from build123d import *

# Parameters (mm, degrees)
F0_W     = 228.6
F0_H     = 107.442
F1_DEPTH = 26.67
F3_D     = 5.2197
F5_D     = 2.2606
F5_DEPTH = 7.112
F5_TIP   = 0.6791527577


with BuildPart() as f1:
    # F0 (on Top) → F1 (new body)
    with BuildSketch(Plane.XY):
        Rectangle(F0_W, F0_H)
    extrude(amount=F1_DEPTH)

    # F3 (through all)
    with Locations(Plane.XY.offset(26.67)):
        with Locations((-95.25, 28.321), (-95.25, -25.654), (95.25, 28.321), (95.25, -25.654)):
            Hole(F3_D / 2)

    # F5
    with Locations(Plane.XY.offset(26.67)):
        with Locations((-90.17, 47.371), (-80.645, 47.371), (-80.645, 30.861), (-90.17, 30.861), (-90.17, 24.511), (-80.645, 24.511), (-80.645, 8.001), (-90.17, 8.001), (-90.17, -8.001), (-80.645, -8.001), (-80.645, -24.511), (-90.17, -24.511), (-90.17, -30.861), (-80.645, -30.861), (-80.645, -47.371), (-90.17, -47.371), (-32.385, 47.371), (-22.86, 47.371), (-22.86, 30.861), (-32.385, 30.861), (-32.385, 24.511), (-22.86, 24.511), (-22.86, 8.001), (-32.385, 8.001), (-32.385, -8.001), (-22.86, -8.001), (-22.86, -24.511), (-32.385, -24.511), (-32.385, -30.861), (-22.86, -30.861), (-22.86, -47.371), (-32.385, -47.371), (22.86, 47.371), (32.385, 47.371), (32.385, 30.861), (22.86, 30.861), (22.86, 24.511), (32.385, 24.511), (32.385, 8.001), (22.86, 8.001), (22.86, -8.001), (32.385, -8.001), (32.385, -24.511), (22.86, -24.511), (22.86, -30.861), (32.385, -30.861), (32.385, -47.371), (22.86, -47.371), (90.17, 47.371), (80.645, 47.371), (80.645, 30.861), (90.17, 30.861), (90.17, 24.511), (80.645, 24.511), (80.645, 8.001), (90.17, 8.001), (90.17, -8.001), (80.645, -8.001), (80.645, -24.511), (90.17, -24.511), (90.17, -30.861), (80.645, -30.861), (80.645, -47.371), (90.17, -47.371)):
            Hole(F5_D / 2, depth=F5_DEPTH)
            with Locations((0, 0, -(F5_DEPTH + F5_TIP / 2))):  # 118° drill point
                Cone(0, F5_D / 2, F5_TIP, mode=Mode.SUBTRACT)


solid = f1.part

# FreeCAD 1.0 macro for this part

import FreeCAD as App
import Part
import Sketcher
Q = App.Units.Quantity

doc = App.newDocument("Part")
body = doc.addObject("PartDesign::Body", "Body")

sketch1 = doc.addObject("Sketcher::SketchObject", "Sketch")
body.addObject(sketch1)
sketch1.AttachmentSupport = (doc.XY_Plane, [""])
sketch1.MapMode = "FlatFace"
sketch1.addGeometry([
    Part.LineSegment(App.Vector(-114, 54, 0), App.Vector(-114, -54, 0)),
    Part.LineSegment(App.Vector(-114, -54, 0), App.Vector(114, -54, 0)),
    Part.LineSegment(App.Vector(114, -54, 0), App.Vector(114, 54, 0)),
    Part.LineSegment(App.Vector(114, 54, 0), App.Vector(-114, 54, 0)),
], False)
sketch1.addConstraint([
    Sketcher.Constraint("Coincident", 0, 2, 1, 1),
    Sketcher.Constraint("Coincident", 1, 2, 2, 1),
    Sketcher.Constraint("Coincident", 2, 2, 3, 1),
    Sketcher.Constraint("Coincident", 3, 2, 0, 1),
    Sketcher.Constraint("Vertical", 0),
    Sketcher.Constraint("Horizontal", 1),
    Sketcher.Constraint("Vertical", 2),
    Sketcher.Constraint("Horizontal", 3),
    Sketcher.Constraint("Symmetric", 0, 2, 2, 2, -1, 1),
    Sketcher.Constraint("DistanceX", 1, 1, 1, 2, Q("9 in")),
    Sketcher.Constraint("DistanceY", 0, 2, 0, 1, Q("4.23 in")),
])
pad1 = doc.addObject("PartDesign::Pad", "Pad")
body.addObject(pad1)
pad1.Profile = sketch1
pad1.Length = Q("1.05 in")

sketch2 = doc.addObject("Sketcher::SketchObject", "Sketch001")
body.addObject(sketch2)
sketch2.AttachmentSupport = (doc.XY_Plane, [""])
sketch2.MapMode = "FlatFace"
sketch2.AttachmentOffset = App.Placement(App.Vector(0, 0, 1.05 * 25.4), App.Rotation())
sketch2.addGeometry([
    Part.Circle(App.Vector(-95.2, 28.3, 0), App.Vector(0, 0, 1), 2.6),
    Part.Circle(App.Vector(-95.2, -25.7, 0), App.Vector(0, 0, 1), 2.6),
    Part.Circle(App.Vector(95.2, 28.3, 0), App.Vector(0, 0, 1), 2.6),
    Part.Circle(App.Vector(95.2, -25.7, 0), App.Vector(0, 0, 1), 2.6),
], False)
sketch2.addConstraint([
    Sketcher.Constraint("Equal", 0, 1),
    Sketcher.Constraint("Equal", 1, 2),
    Sketcher.Constraint("Equal", 2, 3),
    Sketcher.Constraint("Symmetric", 0, 3, 2, 3, -2),
    Sketcher.Constraint("Symmetric", 1, 3, 3, 3, -2),
    Sketcher.Constraint("Vertical", 0, 3, 1, 3),
    Sketcher.Constraint("Diameter", 0, Q("0.2055 in")),
    Sketcher.Constraint("DistanceX", 0, 3, 2, 3, Q("7.5 in")),
    Sketcher.Constraint("DistanceY", 1, 3, -1, 1, Q("1.01 in")),
    Sketcher.Constraint("DistanceY", -1, 1, 0, 3, Q("1.115 in")),
])
doc.recompute()
hole = doc.addObject("PartDesign::Hole", "Hole")
body.addObject(hole)
hole.Profile = sketch2
hole.ThreadType = "None"
hole.Diameter = Q("0.2055 in")
hole.DepthType = "ThroughAll"

sketch3 = doc.addObject("Sketcher::SketchObject", "Sketch002")
body.addObject(sketch3)
sketch3.AttachmentSupport = (doc.XY_Plane, [""])
sketch3.MapMode = "FlatFace"
sketch3.AttachmentOffset = App.Placement(App.Vector(0, 0, 1.05 * 25.4), App.Rotation())
sketch3.addGeometry([
    Part.Circle(App.Vector(-90.2, 47.4, 0), App.Vector(0, 0, 1), 1.1),
    Part.Circle(App.Vector(-80.6, 47.4, 0), App.Vector(0, 0, 1), 1.1),
    Part.Circle(App.Vector(-80.6, 30.9, 0), App.Vector(0, 0, 1), 1.1),
    Part.Circle(App.Vector(-90.2, 30.9, 0), App.Vector(0, 0, 1), 1.1),
    Part.Circle(App.Vector(-90.2, 24.5, 0), App.Vector(0, 0, 1), 1.1),
    Part.Circle(App.Vector(-80.6, 24.5, 0), App.Vector(0, 0, 1), 1.1),
    Part.Circle(App.Vector(-80.6, 8, 0), App.Vector(0, 0, 1), 1.1),
    Part.Circle(App.Vector(-90.2, 8, 0), App.Vector(0, 0, 1), 1.1),
    Part.Circle(App.Vector(-90.2, -8, 0), App.Vector(0, 0, 1), 1.1),
    Part.Circle(App.Vector(-80.6, -8, 0), App.Vector(0, 0, 1), 1.1),
    Part.Circle(App.Vector(-80.6, -24.5, 0), App.Vector(0, 0, 1), 1.1),
    Part.Circle(App.Vector(-90.2, -24.5, 0), App.Vector(0, 0, 1), 1.1),
    Part.Circle(App.Vector(-90.2, -30.9, 0), App.Vector(0, 0, 1), 1.1),
    Part.Circle(App.Vector(-80.6, -30.9, 0), App.Vector(0, 0, 1), 1.1),
    Part.Circle(App.Vector(-80.6, -47.4, 0), App.Vector(0, 0, 1), 1.1),
    Part.Circle(App.Vector(-90.2, -47.4, 0), App.Vector(0, 0, 1), 1.1),
    Part.Circle(App.Vector(-32.4, 47.4, 0), App.Vector(0, 0, 1), 1.1),
    Part.Circle(App.Vector(-22.9, 47.4, 0), App.Vector(0, 0, 1), 1.1),
    Part.Circle(App.Vector(-22.9, 30.9, 0), App.Vector(0, 0, 1), 1.1),
    Part.Circle(App.Vector(-32.4, 30.9, 0), App.Vector(0, 0, 1), 1.1),
    Part.Circle(App.Vector(-32.4, 24.5, 0), App.Vector(0, 0, 1), 1.1),
    Part.Circle(App.Vector(-22.9, 24.5, 0), App.Vector(0, 0, 1), 1.1),
    Part.Circle(App.Vector(-22.9, 8, 0), App.Vector(0, 0, 1), 1.1),
    Part.Circle(App.Vector(-32.4, 8, 0), App.Vector(0, 0, 1), 1.1),
    Part.Circle(App.Vector(-32.4, -8, 0), App.Vector(0, 0, 1), 1.1),
    Part.Circle(App.Vector(-22.9, -8, 0), App.Vector(0, 0, 1), 1.1),
    Part.Circle(App.Vector(-22.9, -24.5, 0), App.Vector(0, 0, 1), 1.1),
    Part.Circle(App.Vector(-32.4, -24.5, 0), App.Vector(0, 0, 1), 1.1),
    Part.Circle(App.Vector(-32.4, -30.9, 0), App.Vector(0, 0, 1), 1.1),
    Part.Circle(App.Vector(-22.9, -30.9, 0), App.Vector(0, 0, 1), 1.1),
    Part.Circle(App.Vector(-22.9, -47.4, 0), App.Vector(0, 0, 1), 1.1),
    Part.Circle(App.Vector(-32.4, -47.4, 0), App.Vector(0, 0, 1), 1.1),
    Part.Circle(App.Vector(22.9, 47.4, 0), App.Vector(0, 0, 1), 1.1),
    Part.Circle(App.Vector(32.4, 47.4, 0), App.Vector(0, 0, 1), 1.1),
    Part.Circle(App.Vector(32.4, 30.9, 0), App.Vector(0, 0, 1), 1.1),
    Part.Circle(App.Vector(22.9, 30.9, 0), App.Vector(0, 0, 1), 1.1),
    Part.Circle(App.Vector(22.9, 24.5, 0), App.Vector(0, 0, 1), 1.1),
    Part.Circle(App.Vector(32.4, 24.5, 0), App.Vector(0, 0, 1), 1.1),
    Part.Circle(App.Vector(32.4, 8, 0), App.Vector(0, 0, 1), 1.1),
    Part.Circle(App.Vector(22.9, 8, 0), App.Vector(0, 0, 1), 1.1),
    Part.Circle(App.Vector(22.9, -8, 0), App.Vector(0, 0, 1), 1.1),
    Part.Circle(App.Vector(32.4, -8, 0), App.Vector(0, 0, 1), 1.1),
    Part.Circle(App.Vector(32.4, -24.5, 0), App.Vector(0, 0, 1), 1.1),
    Part.Circle(App.Vector(22.9, -24.5, 0), App.Vector(0, 0, 1), 1.1),
    Part.Circle(App.Vector(22.9, -30.9, 0), App.Vector(0, 0, 1), 1.1),
    Part.Circle(App.Vector(32.4, -30.9, 0), App.Vector(0, 0, 1), 1.1),
    Part.Circle(App.Vector(32.4, -47.4, 0), App.Vector(0, 0, 1), 1.1),
    Part.Circle(App.Vector(22.9, -47.4, 0), App.Vector(0, 0, 1), 1.1),
    Part.Circle(App.Vector(90.2, 47.4, 0), App.Vector(0, 0, 1), 1.1),
    Part.Circle(App.Vector(80.6, 47.4, 0), App.Vector(0, 0, 1), 1.1),
    Part.Circle(App.Vector(80.6, 30.9, 0), App.Vector(0, 0, 1), 1.1),
    Part.Circle(App.Vector(90.2, 30.9, 0), App.Vector(0, 0, 1), 1.1),
    Part.Circle(App.Vector(90.2, 24.5, 0), App.Vector(0, 0, 1), 1.1),
    Part.Circle(App.Vector(80.6, 24.5, 0), App.Vector(0, 0, 1), 1.1),
    Part.Circle(App.Vector(80.6, 8, 0), App.Vector(0, 0, 1), 1.1),
    Part.Circle(App.Vector(90.2, 8, 0), App.Vector(0, 0, 1), 1.1),
    Part.Circle(App.Vector(90.2, -8, 0), App.Vector(0, 0, 1), 1.1),
    Part.Circle(App.Vector(80.6, -8, 0), App.Vector(0, 0, 1), 1.1),
    Part.Circle(App.Vector(80.6, -24.5, 0), App.Vector(0, 0, 1), 1.1),
    Part.Circle(App.Vector(90.2, -24.5, 0), App.Vector(0, 0, 1), 1.1),
    Part.Circle(App.Vector(90.2, -30.9, 0), App.Vector(0, 0, 1), 1.1),
    Part.Circle(App.Vector(80.6, -30.9, 0), App.Vector(0, 0, 1), 1.1),
    Part.Circle(App.Vector(80.6, -47.4, 0), App.Vector(0, 0, 1), 1.1),
    Part.Circle(App.Vector(90.2, -47.4, 0), App.Vector(0, 0, 1), 1.1),
], False)
sketch3.addConstraint([
    Sketcher.Constraint("Equal", 0, 1),
    Sketcher.Constraint("Equal", 1, 2),
    Sketcher.Constraint("Equal", 2, 3),
    Sketcher.Constraint("Equal", 3, 4),
    Sketcher.Constraint("Equal", 4, 5),
    Sketcher.Constraint("Equal", 5, 6),
    Sketcher.Constraint("Equal", 6, 7),
    Sketcher.Constraint("Equal", 7, 8),
    Sketcher.Constraint("Equal", 8, 9),
    Sketcher.Constraint("Equal", 9, 10),
    Sketcher.Constraint("Equal", 10, 11),
    Sketcher.Constraint("Equal", 11, 12),
    Sketcher.Constraint("Equal", 12, 13),
    Sketcher.Constraint("Equal", 13, 14),
    Sketcher.Constraint("Equal", 14, 15),
    Sketcher.Constraint("Equal", 15, 16),
    Sketcher.Constraint("Equal", 16, 17),
    Sketcher.Constraint("Equal", 17, 18),
    Sketcher.Constraint("Equal", 18, 19),
    Sketcher.Constraint("Equal", 19, 20),
    Sketcher.Constraint("Equal", 20, 21),
    Sketcher.Constraint("Equal", 21, 22),
    Sketcher.Constraint("Equal", 22, 23),
    Sketcher.Constraint("Equal", 23, 24),
    Sketcher.Constraint("Equal", 24, 25),
    Sketcher.Constraint("Equal", 25, 26),
    Sketcher.Constraint("Equal", 26, 27),
    Sketcher.Constraint("Equal", 27, 28),
    Sketcher.Constraint("Equal", 28, 29),
    Sketcher.Constraint("Equal", 29, 30),
    Sketcher.Constraint("Equal", 30, 31),
    Sketcher.Constraint("Equal", 31, 32),
    Sketcher.Constraint("Equal", 32, 33),
    Sketcher.Constraint("Equal", 33, 34),
    Sketcher.Constraint("Equal", 34, 35),
    Sketcher.Constraint("Equal", 35, 36),
    Sketcher.Constraint("Equal", 36, 37),
    Sketcher.Constraint("Equal", 37, 38),
    Sketcher.Constraint("Equal", 38, 39),
    Sketcher.Constraint("Equal", 39, 40),
    Sketcher.Constraint("Equal", 40, 41),
    Sketcher.Constraint("Equal", 41, 42),
    Sketcher.Constraint("Equal", 42, 43),
    Sketcher.Constraint("Equal", 43, 44),
    Sketcher.Constraint("Equal", 44, 45),
    Sketcher.Constraint("Equal", 45, 46),
    Sketcher.Constraint("Equal", 46, 47),
    Sketcher.Constraint("Equal", 47, 48),
    Sketcher.Constraint("Equal", 48, 49),
    Sketcher.Constraint("Equal", 49, 50),
    Sketcher.Constraint("Equal", 50, 51),
    Sketcher.Constraint("Equal", 51, 52),
    Sketcher.Constraint("Equal", 52, 53),
    Sketcher.Constraint("Equal", 53, 54),
    Sketcher.Constraint("Equal", 54, 55),
    Sketcher.Constraint("Equal", 55, 56),
    Sketcher.Constraint("Equal", 56, 57),
    Sketcher.Constraint("Equal", 57, 58),
    Sketcher.Constraint("Equal", 58, 59),
    Sketcher.Constraint("Equal", 59, 60),
    Sketcher.Constraint("Equal", 60, 61),
    Sketcher.Constraint("Equal", 61, 62),
    Sketcher.Constraint("Equal", 62, 63),
    Sketcher.Constraint("Symmetric", 30, 3, 32, 3, -1, 1),
    Sketcher.Constraint("Symmetric", 31, 3, 33, 3, -1, 1),
    Sketcher.Constraint("Symmetric", 28, 3, 34, 3, -1, 1),
    Sketcher.Constraint("Symmetric", 29, 3, 35, 3, -1, 1),
    Sketcher.Constraint("Symmetric", 26, 3, 36, 3, -1, 1),
    Sketcher.Constraint("Symmetric", 27, 3, 37, 3, -1, 1),
    Sketcher.Constraint("Symmetric", 24, 3, 38, 3, -1, 1),
    Sketcher.Constraint("Symmetric", 25, 3, 39, 3, -1, 1),
    Sketcher.Constraint("Symmetric", 22, 3, 40, 3, -1, 1),
    Sketcher.Constraint("Symmetric", 23, 3, 41, 3, -1, 1),
    Sketcher.Constraint("Symmetric", 20, 3, 42, 3, -1, 1),
    Sketcher.Constraint("Symmetric", 21, 3, 43, 3, -1, 1),
    Sketcher.Constraint("Symmetric", 18, 3, 44, 3, -1, 1),
    Sketcher.Constraint("Symmetric", 19, 3, 45, 3, -1, 1),
    Sketcher.Constraint("Symmetric", 16, 3, 46, 3, -1, 1),
    Sketcher.Constraint("Symmetric", 17, 3, 47, 3, -1, 1),
    Sketcher.Constraint("Symmetric", 15, 3, 48, 3, -1, 1),
    Sketcher.Constraint("Symmetric", 14, 3, 49, 3, -1, 1),
    Sketcher.Constraint("Symmetric", 13, 3, 50, 3, -1, 1),
    Sketcher.Constraint("Symmetric", 12, 3, 51, 3, -1, 1),
    Sketcher.Constraint("Symmetric", 11, 3, 52, 3, -1, 1),
    Sketcher.Constraint("Symmetric", 10, 3, 53, 3, -1, 1),
    Sketcher.Constraint("Symmetric", 9, 3, 54, 3, -1, 1),
    Sketcher.Constraint("Symmetric", 8, 3, 55, 3, -1, 1),
    Sketcher.Constraint("Symmetric", 7, 3, 56, 3, -1, 1),
    Sketcher.Constraint("Symmetric", 6, 3, 57, 3, -1, 1),
    Sketcher.Constraint("Symmetric", 5, 3, 58, 3, -1, 1),
    Sketcher.Constraint("Symmetric", 4, 3, 59, 3, -1, 1),
    Sketcher.Constraint("Symmetric", 3, 3, 60, 3, -1, 1),
    Sketcher.Constraint("Symmetric", 2, 3, 61, 3, -1, 1),
    Sketcher.Constraint("Symmetric", 1, 3, 62, 3, -1, 1),
    Sketcher.Constraint("Symmetric", 0, 3, 63, 3, -1, 1),
    Sketcher.Constraint("Symmetric", 17, 3, 32, 3, -2),
    Sketcher.Constraint("Symmetric", 16, 3, 33, 3, -2),
    Sketcher.Constraint("Symmetric", 19, 3, 34, 3, -2),
    Sketcher.Constraint("Symmetric", 18, 3, 35, 3, -2),
    Sketcher.Constraint("Symmetric", 21, 3, 36, 3, -2),
    Sketcher.Constraint("Symmetric", 20, 3, 37, 3, -2),
    Sketcher.Constraint("Symmetric", 23, 3, 38, 3, -2),
    Sketcher.Constraint("Symmetric", 22, 3, 39, 3, -2),
    Sketcher.Constraint("Symmetric", 0, 3, 48, 3, -2),
    Sketcher.Constraint("Symmetric", 1, 3, 49, 3, -2),
    Sketcher.Constraint("Symmetric", 2, 3, 50, 3, -2),
    Sketcher.Constraint("Symmetric", 3, 3, 51, 3, -2),
    Sketcher.Constraint("Symmetric", 4, 3, 52, 3, -2),
    Sketcher.Constraint("Symmetric", 5, 3, 53, 3, -2),
    Sketcher.Constraint("Symmetric", 6, 3, 54, 3, -2),
    Sketcher.Constraint("Symmetric", 7, 3, 55, 3, -2),
    Sketcher.Constraint("Horizontal", 0, 3, 1, 3),
    Sketcher.Constraint("Horizontal", 2, 3, 3, 3),
    Sketcher.Constraint("Horizontal", 4, 3, 5, 3),
    Sketcher.Constraint("Horizontal", 6, 3, 7, 3),
    Sketcher.Constraint("Horizontal", 1, 3, 16, 3),
    Sketcher.Constraint("Horizontal", 16, 3, 17, 3),
    Sketcher.Constraint("Horizontal", 3, 3, 18, 3),
    Sketcher.Constraint("Horizontal", 18, 3, 19, 3),
    Sketcher.Constraint("Horizontal", 5, 3, 20, 3),
    Sketcher.Constraint("Horizontal", 20, 3, 21, 3),
    Sketcher.Constraint("Horizontal", 7, 3, 22, 3),
    Sketcher.Constraint("Horizontal", 22, 3, 23, 3),
    Sketcher.Constraint("Vertical", 1, 3, 2, 3),
    Sketcher.Constraint("Vertical", 0, 3, 3, 3),
    Sketcher.Constraint("Vertical", 3, 3, 4, 3),
    Sketcher.Constraint("Vertical", 2, 3, 5, 3),
    Sketcher.Constraint("Vertical", 5, 3, 6, 3),
    Sketcher.Constraint("Vertical", 4, 3, 7, 3),
    Sketcher.Constraint("Vertical", 17, 3, 18, 3),
    Sketcher.Constraint("Vertical", 16, 3, 19, 3),
    Sketcher.Constraint("Vertical", 19, 3, 20, 3),
    Sketcher.Constraint("Vertical", 18, 3, 21, 3),
    Sketcher.Constraint("Vertical", 21, 3, 22, 3),
    Sketcher.Constraint("Vertical", 20, 3, 23, 3),
    Sketcher.Constraint("Diameter", 0, Q("0.089 in")),
    Sketcher.Constraint("DistanceX", 17, 3, -1, 1, Q("0.9 in")),
    Sketcher.Constraint("DistanceX", 0, 3, -1, 1, Q("3.55 in")),
    Sketcher.Constraint("DistanceY", -1, 1, 0, 3, Q("1.865 in")),
    Sketcher.Constraint("DistanceX", 1, 3, -1, 1, Q("3.175 in")),
    Sketcher.Constraint("DistanceY", -1, 1, 2, 3, Q("1.215 in")),
    Sketcher.Constraint("DistanceY", -1, 1, 4, 3, Q("0.965 in")),
    Sketcher.Constraint("DistanceY", -1, 1, 6, 3, Q("0.315 in")),
    Sketcher.Constraint("DistanceX", 16, 3, -1, 1, Q("1.275 in")),
])
doc.recompute()
hole2 = doc.addObject("PartDesign::Hole", "Hole001")
body.addObject(hole2)
hole2.Profile = sketch3
hole2.ThreadType = "None"
hole2.Diameter = Q("0.089 in")
hole2.DepthType = "Dimension"
hole2.Depth = Q("0.28 in")
hole2.DrillPoint = "Angled"
hole2.DrillPointAngle = 118

doc.recompute()
